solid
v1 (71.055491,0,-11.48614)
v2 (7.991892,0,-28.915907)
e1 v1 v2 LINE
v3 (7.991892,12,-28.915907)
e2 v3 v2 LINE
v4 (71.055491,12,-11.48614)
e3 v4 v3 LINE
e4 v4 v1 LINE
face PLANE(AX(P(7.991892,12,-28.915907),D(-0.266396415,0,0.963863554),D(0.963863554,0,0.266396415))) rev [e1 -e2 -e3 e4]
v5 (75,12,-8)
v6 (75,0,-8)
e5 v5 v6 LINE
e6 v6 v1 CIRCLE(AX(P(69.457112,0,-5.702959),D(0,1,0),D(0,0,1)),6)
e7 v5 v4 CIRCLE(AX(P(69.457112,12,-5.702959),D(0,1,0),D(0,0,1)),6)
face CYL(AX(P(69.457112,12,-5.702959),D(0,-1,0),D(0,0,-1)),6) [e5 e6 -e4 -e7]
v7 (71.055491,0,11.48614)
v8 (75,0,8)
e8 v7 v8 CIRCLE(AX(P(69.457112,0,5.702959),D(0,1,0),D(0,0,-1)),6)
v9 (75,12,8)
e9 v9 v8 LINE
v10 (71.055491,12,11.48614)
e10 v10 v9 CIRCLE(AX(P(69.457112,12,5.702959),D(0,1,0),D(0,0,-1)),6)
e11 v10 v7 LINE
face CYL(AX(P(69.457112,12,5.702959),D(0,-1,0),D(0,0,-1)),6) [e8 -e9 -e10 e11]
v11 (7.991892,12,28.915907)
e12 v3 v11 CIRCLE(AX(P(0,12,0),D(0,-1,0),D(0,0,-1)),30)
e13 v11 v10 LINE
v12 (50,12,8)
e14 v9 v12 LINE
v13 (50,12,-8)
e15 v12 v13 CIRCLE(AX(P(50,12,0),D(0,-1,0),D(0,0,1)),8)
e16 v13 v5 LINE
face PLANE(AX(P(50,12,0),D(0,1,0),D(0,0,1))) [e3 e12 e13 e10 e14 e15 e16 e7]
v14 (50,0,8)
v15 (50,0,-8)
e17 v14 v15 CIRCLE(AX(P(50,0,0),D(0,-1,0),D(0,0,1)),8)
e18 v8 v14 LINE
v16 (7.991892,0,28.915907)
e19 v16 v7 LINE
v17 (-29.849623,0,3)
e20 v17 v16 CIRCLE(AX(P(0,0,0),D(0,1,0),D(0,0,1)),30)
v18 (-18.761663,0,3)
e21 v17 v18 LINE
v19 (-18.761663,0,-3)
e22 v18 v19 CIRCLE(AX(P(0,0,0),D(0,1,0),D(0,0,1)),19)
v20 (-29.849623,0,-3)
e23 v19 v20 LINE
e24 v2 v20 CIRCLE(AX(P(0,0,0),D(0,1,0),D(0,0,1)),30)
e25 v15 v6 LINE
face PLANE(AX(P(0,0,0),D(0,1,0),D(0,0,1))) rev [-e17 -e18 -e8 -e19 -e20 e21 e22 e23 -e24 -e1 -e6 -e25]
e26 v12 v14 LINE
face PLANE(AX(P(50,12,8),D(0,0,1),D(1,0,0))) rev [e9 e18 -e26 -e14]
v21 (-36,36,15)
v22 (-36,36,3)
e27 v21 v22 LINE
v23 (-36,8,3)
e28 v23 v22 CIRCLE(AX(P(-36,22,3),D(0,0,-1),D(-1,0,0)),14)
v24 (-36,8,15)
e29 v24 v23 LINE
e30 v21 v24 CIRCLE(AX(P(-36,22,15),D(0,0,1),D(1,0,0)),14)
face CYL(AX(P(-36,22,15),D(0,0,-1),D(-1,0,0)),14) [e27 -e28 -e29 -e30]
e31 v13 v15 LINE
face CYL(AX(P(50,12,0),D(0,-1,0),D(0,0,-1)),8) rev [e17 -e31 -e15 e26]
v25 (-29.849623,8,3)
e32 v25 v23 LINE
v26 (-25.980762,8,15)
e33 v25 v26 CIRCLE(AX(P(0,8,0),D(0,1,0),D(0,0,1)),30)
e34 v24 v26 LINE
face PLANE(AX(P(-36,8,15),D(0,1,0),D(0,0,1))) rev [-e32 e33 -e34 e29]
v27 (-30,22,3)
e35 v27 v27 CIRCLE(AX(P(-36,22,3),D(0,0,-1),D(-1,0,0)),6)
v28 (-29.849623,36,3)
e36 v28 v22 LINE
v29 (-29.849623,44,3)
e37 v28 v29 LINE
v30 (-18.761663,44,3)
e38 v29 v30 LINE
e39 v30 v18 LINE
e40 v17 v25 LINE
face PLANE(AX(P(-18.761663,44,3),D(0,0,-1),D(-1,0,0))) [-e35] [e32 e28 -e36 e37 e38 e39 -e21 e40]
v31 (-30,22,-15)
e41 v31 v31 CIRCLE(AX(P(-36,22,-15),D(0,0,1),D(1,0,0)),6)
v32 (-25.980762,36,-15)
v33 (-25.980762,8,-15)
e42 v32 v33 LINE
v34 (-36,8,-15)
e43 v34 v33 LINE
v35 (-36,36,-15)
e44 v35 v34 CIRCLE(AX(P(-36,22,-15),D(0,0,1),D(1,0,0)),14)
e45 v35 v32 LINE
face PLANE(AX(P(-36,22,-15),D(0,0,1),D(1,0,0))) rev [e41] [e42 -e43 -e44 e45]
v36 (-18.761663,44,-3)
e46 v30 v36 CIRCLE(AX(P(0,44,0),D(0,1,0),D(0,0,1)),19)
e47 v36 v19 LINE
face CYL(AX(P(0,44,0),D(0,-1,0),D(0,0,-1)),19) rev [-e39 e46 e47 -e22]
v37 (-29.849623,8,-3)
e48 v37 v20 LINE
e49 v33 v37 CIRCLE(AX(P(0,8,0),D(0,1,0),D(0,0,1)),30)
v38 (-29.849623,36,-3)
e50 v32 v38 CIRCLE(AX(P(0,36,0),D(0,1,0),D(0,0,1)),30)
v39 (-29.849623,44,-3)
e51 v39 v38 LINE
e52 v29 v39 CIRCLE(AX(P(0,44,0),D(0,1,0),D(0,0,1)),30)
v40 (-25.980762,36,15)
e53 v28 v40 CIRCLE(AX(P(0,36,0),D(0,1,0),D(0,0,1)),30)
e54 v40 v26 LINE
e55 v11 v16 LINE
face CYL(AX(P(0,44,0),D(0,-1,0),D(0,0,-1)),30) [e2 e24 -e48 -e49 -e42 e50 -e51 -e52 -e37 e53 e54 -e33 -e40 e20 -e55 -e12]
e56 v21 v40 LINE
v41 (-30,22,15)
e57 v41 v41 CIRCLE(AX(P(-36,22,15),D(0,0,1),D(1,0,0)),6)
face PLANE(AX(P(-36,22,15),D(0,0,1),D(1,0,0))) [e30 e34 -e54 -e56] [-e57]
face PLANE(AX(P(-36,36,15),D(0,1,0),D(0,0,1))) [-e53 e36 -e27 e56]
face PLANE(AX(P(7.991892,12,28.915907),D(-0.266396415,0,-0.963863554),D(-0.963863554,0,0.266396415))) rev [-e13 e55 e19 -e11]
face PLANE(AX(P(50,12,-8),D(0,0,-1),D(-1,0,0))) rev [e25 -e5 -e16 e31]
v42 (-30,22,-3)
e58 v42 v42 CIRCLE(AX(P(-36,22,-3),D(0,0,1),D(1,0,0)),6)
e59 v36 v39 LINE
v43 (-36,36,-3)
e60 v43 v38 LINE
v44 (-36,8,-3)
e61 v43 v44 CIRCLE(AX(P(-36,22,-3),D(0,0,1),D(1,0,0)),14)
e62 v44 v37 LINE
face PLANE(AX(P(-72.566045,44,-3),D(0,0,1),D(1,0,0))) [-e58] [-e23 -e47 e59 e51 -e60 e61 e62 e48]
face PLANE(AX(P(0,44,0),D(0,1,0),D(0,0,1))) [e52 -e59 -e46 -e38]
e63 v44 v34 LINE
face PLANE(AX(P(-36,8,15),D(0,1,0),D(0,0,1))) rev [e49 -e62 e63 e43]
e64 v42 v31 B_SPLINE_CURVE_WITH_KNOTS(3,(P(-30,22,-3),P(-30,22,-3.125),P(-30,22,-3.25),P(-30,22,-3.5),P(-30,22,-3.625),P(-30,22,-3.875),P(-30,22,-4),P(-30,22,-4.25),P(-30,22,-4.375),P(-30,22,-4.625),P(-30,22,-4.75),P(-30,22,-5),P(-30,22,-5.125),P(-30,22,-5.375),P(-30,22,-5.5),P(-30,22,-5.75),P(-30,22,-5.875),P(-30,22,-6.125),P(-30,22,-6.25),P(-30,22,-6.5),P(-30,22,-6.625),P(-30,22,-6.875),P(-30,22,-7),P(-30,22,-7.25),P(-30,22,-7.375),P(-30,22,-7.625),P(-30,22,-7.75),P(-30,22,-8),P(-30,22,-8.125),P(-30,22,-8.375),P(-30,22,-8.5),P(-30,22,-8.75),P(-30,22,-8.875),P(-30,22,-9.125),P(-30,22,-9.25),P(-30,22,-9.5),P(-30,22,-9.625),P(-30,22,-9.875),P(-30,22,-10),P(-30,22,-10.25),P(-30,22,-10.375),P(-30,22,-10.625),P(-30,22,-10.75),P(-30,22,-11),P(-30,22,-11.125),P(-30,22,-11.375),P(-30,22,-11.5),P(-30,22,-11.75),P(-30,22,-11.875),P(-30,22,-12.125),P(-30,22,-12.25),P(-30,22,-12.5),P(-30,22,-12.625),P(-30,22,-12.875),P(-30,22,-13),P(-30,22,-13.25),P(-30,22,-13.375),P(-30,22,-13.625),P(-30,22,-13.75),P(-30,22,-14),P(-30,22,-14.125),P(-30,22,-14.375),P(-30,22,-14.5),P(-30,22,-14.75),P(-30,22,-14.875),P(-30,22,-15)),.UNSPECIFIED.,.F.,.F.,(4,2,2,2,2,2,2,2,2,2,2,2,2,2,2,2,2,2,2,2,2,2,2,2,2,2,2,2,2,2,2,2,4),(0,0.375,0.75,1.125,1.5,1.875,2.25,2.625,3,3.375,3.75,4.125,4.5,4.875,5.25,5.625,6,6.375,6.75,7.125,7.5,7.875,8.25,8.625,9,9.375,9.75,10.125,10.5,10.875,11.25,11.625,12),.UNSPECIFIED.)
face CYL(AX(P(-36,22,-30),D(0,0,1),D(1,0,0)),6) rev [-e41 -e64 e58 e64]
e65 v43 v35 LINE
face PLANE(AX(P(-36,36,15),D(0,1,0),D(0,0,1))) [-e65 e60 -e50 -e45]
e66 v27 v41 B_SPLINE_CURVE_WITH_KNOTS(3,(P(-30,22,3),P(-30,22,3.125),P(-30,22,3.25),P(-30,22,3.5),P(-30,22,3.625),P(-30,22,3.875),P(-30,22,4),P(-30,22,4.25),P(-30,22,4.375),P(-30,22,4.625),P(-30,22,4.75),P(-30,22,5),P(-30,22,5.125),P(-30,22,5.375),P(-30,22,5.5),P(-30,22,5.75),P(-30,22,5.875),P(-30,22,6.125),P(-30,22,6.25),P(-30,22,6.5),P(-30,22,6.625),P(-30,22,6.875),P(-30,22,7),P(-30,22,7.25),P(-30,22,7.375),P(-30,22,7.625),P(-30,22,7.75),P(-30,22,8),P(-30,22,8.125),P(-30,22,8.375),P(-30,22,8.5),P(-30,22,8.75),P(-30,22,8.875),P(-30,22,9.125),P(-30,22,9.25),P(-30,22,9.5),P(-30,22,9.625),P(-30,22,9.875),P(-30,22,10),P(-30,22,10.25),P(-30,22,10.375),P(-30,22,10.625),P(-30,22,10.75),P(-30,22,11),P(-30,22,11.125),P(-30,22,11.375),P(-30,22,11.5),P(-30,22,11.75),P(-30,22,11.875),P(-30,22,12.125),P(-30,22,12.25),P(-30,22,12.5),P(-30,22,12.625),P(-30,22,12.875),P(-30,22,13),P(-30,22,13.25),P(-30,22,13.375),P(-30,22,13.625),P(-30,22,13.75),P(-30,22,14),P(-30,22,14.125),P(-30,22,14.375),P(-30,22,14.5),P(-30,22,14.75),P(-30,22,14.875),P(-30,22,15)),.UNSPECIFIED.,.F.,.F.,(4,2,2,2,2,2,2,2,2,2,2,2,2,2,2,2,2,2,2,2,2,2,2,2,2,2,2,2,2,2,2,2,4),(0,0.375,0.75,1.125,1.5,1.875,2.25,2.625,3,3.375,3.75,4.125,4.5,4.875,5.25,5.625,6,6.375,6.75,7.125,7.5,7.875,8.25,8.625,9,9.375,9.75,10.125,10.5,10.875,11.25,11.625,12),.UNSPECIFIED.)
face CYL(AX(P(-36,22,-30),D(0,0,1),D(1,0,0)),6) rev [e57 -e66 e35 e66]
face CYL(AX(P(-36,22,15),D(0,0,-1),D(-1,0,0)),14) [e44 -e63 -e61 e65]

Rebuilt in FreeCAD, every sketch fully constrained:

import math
import FreeCAD as App
import Part
import Sketcher

V = App.Vector
Q = App.Units.Quantity

doc = App.newDocument("Part")
body = doc.addObject("PartDesign::Body", "Body")

# Sketch on XZ plane
sketch1 = body.newObject("Sketcher::SketchObject", "Sketch")
sketch1.AttachmentSupport = (doc.getObject("XZ_Plane"), [""])
sketch1.MapMode = "FlatFace"
sketch1.addGeometry(Part.Circle(V(0, 0, 0), V(0, 0, 1), 30), False)
sketch1.addConstraint([
    Sketcher.Constraint("Coincident", 0, 3, -1, 1),
    Sketcher.Constraint("Diameter", 0, Q("60 mm")),
])
pad1 = body.newObject("PartDesign::Pad", "Pad")
pad1.Profile = sketch1
pad1.Length = 44
pad1.Reversed = True

# Sketch on XZ plane
sketch2 = body.newObject("Sketcher::SketchObject", "Sketch001")
sketch2.AttachmentSupport = (doc.getObject("XZ_Plane"), [""])
sketch2.MapMode = "FlatFace"
sketch2.addGeometry([
    Part.LineSegment(V(50, -8, 0), V(75, -8, 0)),  # 0
    Part.ArcOfCircle(Part.Circle(V(69.457112, -5.702959, 0), V(0, 0, 1), 6), math.radians(-74.550055), math.radians(-22.509722)),  # 1
    Part.LineSegment(V(71.055491, -11.48614, 0), V(7.991892, -28.915907, 0)),  # 2
    Part.ArcOfCircle(Part.Circle(V(0, 0, 0), V(0, 0, 1), 30), math.radians(-74.550055), math.radians(74.550055)),  # 3
    Part.LineSegment(V(7.991892, 28.915907, 0), V(71.055491, 11.48614, 0)),  # 4
    Part.ArcOfCircle(Part.Circle(V(69.457112, 5.702959, 0), V(0, 0, 1), 6), math.radians(22.509722), math.radians(74.550055)),  # 5
    Part.LineSegment(V(75, 8, 0), V(50, 8, 0)),  # 6
    Part.ArcOfCircle(Part.Circle(V(50, 0, 0), V(0, 0, 1), 8), math.radians(90), math.radians(270)),  # 7
], False)
sketch2.addConstraint([
    Sketcher.Constraint("Coincident", 0, 2, 1, 2),
    Sketcher.Constraint("Tangent", 1, 1, 2, 1),
    Sketcher.Constraint("Tangent", 2, 2, 3, 1),
    Sketcher.Constraint("Tangent", 3, 2, 4, 1),
    Sketcher.Constraint("Tangent", 4, 2, 5, 2),
    Sketcher.Constraint("Coincident", 5, 1, 6, 1),
    Sketcher.Constraint("Tangent", 6, 2, 7, 1),
    Sketcher.Constraint("Tangent", 7, 2, 0, 1),
    Sketcher.Constraint("Horizontal", 0),
    Sketcher.Constraint("Horizontal", 6),
    Sketcher.Constraint("Coincident", 3, 3, -1, 1),
    Sketcher.Constraint("Equal", 1, 5),
    Sketcher.Constraint("Symmetric", 1, 3, 5, 3, -1),
    Sketcher.Constraint("PointOnObject", 7, 3, -1),
    Sketcher.Constraint("Radius", 1, Q("6 mm")),
    Sketcher.Constraint("Radius", 3, Q("30 mm")),
    Sketcher.Constraint("Radius", 7, Q("8 mm")),
    Sketcher.Constraint("DistanceX", 0, 1, 0, 2, Q("25 mm")),
    Sketcher.Constraint("DistanceX", -1, 1, 7, 3, Q("50 mm")),
    Sketcher.Constraint("DistanceY", 1, 1, 5, 3, Q("17.189099 mm")),
])
pad2 = body.newObject("PartDesign::Pad", "Pad001")
pad2.Profile = sketch2
pad2.Length = 12
pad2.Reversed = True

# Sketch on XY plane
sketch3 = body.newObject("Sketcher::SketchObject", "Sketch002")
sketch3.AttachmentSupport = (doc.getObject("XY_Plane"), [""])
sketch3.MapMode = "FlatFace"
sketch3.addGeometry([
    Part.LineSegment(V(-23.901481, 36, 0), V(-36, 36, 0)),
    Part.ArcOfCircle(Part.Circle(V(-36, 22, 0), V(0, 0, 1), 14), math.radians(90), math.radians(270)),
    Part.LineSegment(V(-36, 8, 0), V(-23.901481, 8, 0)),
    Part.LineSegment(V(-23.901481, 8, 0), V(-23.901481, 36, 0)),
], False)
sketch3.addConstraint([
    Sketcher.Constraint("Tangent", 0, 2, 1, 1),
    Sketcher.Constraint("Tangent", 1, 2, 2, 1),
    Sketcher.Constraint("Coincident", 2, 2, 3, 1),
    Sketcher.Constraint("Coincident", 3, 2, 0, 1),
    Sketcher.Constraint("Horizontal", 0),
    Sketcher.Constraint("Horizontal", 2),
    Sketcher.Constraint("Vertical", 3),
    Sketcher.Constraint("Radius", 1, Q("14 mm")),
    Sketcher.Constraint("DistanceX", 1, 3, -1, 1, Q("36 mm")),
    Sketcher.Constraint("DistanceY", -1, 1, 1, 3, Q("22 mm")),
    Sketcher.Constraint("DistanceX", 0, 2, 0, 1, Q("12.098519 mm")),
])
pad3 = body.newObject("PartDesign::Pad", "Pad002")
pad3.Profile = sketch3
pad3.Length = 30
pad3.Midplane = True

# Sketch on XZ plane
sketch4 = body.newObject("Sketcher::SketchObject", "Sketch003")
sketch4.AttachmentSupport = (doc.getObject("XZ_Plane"), [""])
sketch4.MapMode = "FlatFace"
sketch4.addGeometry([
    Part.LineSegment(V(-18.761663, -3, 0), V(-72.566045, -3, 0)),
    Part.LineSegment(V(-72.566045, -3, 0), V(-72.566045, 3, 0)),
    Part.LineSegment(V(-72.566045, 3, 0), V(-18.761663, 3, 0)),
    Part.ArcOfCircle(Part.Circle(V(0, 0, 0), V(0, 0, 1), 19), math.radians(-170.91528), math.radians(170.91528)),
], False)
sketch4.addConstraint([
    Sketcher.Constraint("Coincident", 0, 2, 1, 1),
    Sketcher.Constraint("Coincident", 1, 2, 2, 1),
    Sketcher.Constraint("Coincident", 2, 2, 3, 2),
    Sketcher.Constraint("Coincident", 3, 1, 0, 1),
    Sketcher.Constraint("Horizontal", 0),
    Sketcher.Constraint("Vertical", 1),
    Sketcher.Constraint("Horizontal", 2),
    Sketcher.Constraint("Coincident", 3, 3, -1, 1),
    Sketcher.Constraint("Vertical", 2, 2, 3, 1),
    Sketcher.Constraint("Radius", 3, Q("19 mm")),
    Sketcher.Constraint("DistanceY", 1, 1, 1, 2, Q("6 mm")),
    Sketcher.Constraint("DistanceX", 0, 2, 0, 1, Q("53.804382 mm")),
])
pocket1 = body.newObject("PartDesign::Pocket", "Pocket")
pocket1.Profile = sketch4
pocket1.Type = "ThroughAll"

# Sketch on XY plane
sketch5 = body.newObject("Sketcher::SketchObject", "Sketch004")
sketch5.AttachmentSupport = (doc.getObject("XY_Plane"), [""])
sketch5.MapMode = "FlatFace"
sketch5.AttachmentOffset = App.Placement(V(0, 0, 15), App.Rotation())
sketch5.addGeometry(Part.Circle(V(-36, 22, 0), V(0, 0, 1), 6), False)
sketch5.addConstraint([
    Sketcher.Constraint("Diameter", 0, Q("12 mm")),
    Sketcher.Constraint("DistanceX", 0, 3, -1, 1, Q("36 mm")),
    Sketcher.Constraint("DistanceY", -1, 1, 0, 3, Q("22 mm")),
])
pocket2 = body.newObject("PartDesign::Pocket", "Pocket001")
pocket2.Profile = sketch5
pocket2.Type = "ThroughAll"

doc.recompute()
